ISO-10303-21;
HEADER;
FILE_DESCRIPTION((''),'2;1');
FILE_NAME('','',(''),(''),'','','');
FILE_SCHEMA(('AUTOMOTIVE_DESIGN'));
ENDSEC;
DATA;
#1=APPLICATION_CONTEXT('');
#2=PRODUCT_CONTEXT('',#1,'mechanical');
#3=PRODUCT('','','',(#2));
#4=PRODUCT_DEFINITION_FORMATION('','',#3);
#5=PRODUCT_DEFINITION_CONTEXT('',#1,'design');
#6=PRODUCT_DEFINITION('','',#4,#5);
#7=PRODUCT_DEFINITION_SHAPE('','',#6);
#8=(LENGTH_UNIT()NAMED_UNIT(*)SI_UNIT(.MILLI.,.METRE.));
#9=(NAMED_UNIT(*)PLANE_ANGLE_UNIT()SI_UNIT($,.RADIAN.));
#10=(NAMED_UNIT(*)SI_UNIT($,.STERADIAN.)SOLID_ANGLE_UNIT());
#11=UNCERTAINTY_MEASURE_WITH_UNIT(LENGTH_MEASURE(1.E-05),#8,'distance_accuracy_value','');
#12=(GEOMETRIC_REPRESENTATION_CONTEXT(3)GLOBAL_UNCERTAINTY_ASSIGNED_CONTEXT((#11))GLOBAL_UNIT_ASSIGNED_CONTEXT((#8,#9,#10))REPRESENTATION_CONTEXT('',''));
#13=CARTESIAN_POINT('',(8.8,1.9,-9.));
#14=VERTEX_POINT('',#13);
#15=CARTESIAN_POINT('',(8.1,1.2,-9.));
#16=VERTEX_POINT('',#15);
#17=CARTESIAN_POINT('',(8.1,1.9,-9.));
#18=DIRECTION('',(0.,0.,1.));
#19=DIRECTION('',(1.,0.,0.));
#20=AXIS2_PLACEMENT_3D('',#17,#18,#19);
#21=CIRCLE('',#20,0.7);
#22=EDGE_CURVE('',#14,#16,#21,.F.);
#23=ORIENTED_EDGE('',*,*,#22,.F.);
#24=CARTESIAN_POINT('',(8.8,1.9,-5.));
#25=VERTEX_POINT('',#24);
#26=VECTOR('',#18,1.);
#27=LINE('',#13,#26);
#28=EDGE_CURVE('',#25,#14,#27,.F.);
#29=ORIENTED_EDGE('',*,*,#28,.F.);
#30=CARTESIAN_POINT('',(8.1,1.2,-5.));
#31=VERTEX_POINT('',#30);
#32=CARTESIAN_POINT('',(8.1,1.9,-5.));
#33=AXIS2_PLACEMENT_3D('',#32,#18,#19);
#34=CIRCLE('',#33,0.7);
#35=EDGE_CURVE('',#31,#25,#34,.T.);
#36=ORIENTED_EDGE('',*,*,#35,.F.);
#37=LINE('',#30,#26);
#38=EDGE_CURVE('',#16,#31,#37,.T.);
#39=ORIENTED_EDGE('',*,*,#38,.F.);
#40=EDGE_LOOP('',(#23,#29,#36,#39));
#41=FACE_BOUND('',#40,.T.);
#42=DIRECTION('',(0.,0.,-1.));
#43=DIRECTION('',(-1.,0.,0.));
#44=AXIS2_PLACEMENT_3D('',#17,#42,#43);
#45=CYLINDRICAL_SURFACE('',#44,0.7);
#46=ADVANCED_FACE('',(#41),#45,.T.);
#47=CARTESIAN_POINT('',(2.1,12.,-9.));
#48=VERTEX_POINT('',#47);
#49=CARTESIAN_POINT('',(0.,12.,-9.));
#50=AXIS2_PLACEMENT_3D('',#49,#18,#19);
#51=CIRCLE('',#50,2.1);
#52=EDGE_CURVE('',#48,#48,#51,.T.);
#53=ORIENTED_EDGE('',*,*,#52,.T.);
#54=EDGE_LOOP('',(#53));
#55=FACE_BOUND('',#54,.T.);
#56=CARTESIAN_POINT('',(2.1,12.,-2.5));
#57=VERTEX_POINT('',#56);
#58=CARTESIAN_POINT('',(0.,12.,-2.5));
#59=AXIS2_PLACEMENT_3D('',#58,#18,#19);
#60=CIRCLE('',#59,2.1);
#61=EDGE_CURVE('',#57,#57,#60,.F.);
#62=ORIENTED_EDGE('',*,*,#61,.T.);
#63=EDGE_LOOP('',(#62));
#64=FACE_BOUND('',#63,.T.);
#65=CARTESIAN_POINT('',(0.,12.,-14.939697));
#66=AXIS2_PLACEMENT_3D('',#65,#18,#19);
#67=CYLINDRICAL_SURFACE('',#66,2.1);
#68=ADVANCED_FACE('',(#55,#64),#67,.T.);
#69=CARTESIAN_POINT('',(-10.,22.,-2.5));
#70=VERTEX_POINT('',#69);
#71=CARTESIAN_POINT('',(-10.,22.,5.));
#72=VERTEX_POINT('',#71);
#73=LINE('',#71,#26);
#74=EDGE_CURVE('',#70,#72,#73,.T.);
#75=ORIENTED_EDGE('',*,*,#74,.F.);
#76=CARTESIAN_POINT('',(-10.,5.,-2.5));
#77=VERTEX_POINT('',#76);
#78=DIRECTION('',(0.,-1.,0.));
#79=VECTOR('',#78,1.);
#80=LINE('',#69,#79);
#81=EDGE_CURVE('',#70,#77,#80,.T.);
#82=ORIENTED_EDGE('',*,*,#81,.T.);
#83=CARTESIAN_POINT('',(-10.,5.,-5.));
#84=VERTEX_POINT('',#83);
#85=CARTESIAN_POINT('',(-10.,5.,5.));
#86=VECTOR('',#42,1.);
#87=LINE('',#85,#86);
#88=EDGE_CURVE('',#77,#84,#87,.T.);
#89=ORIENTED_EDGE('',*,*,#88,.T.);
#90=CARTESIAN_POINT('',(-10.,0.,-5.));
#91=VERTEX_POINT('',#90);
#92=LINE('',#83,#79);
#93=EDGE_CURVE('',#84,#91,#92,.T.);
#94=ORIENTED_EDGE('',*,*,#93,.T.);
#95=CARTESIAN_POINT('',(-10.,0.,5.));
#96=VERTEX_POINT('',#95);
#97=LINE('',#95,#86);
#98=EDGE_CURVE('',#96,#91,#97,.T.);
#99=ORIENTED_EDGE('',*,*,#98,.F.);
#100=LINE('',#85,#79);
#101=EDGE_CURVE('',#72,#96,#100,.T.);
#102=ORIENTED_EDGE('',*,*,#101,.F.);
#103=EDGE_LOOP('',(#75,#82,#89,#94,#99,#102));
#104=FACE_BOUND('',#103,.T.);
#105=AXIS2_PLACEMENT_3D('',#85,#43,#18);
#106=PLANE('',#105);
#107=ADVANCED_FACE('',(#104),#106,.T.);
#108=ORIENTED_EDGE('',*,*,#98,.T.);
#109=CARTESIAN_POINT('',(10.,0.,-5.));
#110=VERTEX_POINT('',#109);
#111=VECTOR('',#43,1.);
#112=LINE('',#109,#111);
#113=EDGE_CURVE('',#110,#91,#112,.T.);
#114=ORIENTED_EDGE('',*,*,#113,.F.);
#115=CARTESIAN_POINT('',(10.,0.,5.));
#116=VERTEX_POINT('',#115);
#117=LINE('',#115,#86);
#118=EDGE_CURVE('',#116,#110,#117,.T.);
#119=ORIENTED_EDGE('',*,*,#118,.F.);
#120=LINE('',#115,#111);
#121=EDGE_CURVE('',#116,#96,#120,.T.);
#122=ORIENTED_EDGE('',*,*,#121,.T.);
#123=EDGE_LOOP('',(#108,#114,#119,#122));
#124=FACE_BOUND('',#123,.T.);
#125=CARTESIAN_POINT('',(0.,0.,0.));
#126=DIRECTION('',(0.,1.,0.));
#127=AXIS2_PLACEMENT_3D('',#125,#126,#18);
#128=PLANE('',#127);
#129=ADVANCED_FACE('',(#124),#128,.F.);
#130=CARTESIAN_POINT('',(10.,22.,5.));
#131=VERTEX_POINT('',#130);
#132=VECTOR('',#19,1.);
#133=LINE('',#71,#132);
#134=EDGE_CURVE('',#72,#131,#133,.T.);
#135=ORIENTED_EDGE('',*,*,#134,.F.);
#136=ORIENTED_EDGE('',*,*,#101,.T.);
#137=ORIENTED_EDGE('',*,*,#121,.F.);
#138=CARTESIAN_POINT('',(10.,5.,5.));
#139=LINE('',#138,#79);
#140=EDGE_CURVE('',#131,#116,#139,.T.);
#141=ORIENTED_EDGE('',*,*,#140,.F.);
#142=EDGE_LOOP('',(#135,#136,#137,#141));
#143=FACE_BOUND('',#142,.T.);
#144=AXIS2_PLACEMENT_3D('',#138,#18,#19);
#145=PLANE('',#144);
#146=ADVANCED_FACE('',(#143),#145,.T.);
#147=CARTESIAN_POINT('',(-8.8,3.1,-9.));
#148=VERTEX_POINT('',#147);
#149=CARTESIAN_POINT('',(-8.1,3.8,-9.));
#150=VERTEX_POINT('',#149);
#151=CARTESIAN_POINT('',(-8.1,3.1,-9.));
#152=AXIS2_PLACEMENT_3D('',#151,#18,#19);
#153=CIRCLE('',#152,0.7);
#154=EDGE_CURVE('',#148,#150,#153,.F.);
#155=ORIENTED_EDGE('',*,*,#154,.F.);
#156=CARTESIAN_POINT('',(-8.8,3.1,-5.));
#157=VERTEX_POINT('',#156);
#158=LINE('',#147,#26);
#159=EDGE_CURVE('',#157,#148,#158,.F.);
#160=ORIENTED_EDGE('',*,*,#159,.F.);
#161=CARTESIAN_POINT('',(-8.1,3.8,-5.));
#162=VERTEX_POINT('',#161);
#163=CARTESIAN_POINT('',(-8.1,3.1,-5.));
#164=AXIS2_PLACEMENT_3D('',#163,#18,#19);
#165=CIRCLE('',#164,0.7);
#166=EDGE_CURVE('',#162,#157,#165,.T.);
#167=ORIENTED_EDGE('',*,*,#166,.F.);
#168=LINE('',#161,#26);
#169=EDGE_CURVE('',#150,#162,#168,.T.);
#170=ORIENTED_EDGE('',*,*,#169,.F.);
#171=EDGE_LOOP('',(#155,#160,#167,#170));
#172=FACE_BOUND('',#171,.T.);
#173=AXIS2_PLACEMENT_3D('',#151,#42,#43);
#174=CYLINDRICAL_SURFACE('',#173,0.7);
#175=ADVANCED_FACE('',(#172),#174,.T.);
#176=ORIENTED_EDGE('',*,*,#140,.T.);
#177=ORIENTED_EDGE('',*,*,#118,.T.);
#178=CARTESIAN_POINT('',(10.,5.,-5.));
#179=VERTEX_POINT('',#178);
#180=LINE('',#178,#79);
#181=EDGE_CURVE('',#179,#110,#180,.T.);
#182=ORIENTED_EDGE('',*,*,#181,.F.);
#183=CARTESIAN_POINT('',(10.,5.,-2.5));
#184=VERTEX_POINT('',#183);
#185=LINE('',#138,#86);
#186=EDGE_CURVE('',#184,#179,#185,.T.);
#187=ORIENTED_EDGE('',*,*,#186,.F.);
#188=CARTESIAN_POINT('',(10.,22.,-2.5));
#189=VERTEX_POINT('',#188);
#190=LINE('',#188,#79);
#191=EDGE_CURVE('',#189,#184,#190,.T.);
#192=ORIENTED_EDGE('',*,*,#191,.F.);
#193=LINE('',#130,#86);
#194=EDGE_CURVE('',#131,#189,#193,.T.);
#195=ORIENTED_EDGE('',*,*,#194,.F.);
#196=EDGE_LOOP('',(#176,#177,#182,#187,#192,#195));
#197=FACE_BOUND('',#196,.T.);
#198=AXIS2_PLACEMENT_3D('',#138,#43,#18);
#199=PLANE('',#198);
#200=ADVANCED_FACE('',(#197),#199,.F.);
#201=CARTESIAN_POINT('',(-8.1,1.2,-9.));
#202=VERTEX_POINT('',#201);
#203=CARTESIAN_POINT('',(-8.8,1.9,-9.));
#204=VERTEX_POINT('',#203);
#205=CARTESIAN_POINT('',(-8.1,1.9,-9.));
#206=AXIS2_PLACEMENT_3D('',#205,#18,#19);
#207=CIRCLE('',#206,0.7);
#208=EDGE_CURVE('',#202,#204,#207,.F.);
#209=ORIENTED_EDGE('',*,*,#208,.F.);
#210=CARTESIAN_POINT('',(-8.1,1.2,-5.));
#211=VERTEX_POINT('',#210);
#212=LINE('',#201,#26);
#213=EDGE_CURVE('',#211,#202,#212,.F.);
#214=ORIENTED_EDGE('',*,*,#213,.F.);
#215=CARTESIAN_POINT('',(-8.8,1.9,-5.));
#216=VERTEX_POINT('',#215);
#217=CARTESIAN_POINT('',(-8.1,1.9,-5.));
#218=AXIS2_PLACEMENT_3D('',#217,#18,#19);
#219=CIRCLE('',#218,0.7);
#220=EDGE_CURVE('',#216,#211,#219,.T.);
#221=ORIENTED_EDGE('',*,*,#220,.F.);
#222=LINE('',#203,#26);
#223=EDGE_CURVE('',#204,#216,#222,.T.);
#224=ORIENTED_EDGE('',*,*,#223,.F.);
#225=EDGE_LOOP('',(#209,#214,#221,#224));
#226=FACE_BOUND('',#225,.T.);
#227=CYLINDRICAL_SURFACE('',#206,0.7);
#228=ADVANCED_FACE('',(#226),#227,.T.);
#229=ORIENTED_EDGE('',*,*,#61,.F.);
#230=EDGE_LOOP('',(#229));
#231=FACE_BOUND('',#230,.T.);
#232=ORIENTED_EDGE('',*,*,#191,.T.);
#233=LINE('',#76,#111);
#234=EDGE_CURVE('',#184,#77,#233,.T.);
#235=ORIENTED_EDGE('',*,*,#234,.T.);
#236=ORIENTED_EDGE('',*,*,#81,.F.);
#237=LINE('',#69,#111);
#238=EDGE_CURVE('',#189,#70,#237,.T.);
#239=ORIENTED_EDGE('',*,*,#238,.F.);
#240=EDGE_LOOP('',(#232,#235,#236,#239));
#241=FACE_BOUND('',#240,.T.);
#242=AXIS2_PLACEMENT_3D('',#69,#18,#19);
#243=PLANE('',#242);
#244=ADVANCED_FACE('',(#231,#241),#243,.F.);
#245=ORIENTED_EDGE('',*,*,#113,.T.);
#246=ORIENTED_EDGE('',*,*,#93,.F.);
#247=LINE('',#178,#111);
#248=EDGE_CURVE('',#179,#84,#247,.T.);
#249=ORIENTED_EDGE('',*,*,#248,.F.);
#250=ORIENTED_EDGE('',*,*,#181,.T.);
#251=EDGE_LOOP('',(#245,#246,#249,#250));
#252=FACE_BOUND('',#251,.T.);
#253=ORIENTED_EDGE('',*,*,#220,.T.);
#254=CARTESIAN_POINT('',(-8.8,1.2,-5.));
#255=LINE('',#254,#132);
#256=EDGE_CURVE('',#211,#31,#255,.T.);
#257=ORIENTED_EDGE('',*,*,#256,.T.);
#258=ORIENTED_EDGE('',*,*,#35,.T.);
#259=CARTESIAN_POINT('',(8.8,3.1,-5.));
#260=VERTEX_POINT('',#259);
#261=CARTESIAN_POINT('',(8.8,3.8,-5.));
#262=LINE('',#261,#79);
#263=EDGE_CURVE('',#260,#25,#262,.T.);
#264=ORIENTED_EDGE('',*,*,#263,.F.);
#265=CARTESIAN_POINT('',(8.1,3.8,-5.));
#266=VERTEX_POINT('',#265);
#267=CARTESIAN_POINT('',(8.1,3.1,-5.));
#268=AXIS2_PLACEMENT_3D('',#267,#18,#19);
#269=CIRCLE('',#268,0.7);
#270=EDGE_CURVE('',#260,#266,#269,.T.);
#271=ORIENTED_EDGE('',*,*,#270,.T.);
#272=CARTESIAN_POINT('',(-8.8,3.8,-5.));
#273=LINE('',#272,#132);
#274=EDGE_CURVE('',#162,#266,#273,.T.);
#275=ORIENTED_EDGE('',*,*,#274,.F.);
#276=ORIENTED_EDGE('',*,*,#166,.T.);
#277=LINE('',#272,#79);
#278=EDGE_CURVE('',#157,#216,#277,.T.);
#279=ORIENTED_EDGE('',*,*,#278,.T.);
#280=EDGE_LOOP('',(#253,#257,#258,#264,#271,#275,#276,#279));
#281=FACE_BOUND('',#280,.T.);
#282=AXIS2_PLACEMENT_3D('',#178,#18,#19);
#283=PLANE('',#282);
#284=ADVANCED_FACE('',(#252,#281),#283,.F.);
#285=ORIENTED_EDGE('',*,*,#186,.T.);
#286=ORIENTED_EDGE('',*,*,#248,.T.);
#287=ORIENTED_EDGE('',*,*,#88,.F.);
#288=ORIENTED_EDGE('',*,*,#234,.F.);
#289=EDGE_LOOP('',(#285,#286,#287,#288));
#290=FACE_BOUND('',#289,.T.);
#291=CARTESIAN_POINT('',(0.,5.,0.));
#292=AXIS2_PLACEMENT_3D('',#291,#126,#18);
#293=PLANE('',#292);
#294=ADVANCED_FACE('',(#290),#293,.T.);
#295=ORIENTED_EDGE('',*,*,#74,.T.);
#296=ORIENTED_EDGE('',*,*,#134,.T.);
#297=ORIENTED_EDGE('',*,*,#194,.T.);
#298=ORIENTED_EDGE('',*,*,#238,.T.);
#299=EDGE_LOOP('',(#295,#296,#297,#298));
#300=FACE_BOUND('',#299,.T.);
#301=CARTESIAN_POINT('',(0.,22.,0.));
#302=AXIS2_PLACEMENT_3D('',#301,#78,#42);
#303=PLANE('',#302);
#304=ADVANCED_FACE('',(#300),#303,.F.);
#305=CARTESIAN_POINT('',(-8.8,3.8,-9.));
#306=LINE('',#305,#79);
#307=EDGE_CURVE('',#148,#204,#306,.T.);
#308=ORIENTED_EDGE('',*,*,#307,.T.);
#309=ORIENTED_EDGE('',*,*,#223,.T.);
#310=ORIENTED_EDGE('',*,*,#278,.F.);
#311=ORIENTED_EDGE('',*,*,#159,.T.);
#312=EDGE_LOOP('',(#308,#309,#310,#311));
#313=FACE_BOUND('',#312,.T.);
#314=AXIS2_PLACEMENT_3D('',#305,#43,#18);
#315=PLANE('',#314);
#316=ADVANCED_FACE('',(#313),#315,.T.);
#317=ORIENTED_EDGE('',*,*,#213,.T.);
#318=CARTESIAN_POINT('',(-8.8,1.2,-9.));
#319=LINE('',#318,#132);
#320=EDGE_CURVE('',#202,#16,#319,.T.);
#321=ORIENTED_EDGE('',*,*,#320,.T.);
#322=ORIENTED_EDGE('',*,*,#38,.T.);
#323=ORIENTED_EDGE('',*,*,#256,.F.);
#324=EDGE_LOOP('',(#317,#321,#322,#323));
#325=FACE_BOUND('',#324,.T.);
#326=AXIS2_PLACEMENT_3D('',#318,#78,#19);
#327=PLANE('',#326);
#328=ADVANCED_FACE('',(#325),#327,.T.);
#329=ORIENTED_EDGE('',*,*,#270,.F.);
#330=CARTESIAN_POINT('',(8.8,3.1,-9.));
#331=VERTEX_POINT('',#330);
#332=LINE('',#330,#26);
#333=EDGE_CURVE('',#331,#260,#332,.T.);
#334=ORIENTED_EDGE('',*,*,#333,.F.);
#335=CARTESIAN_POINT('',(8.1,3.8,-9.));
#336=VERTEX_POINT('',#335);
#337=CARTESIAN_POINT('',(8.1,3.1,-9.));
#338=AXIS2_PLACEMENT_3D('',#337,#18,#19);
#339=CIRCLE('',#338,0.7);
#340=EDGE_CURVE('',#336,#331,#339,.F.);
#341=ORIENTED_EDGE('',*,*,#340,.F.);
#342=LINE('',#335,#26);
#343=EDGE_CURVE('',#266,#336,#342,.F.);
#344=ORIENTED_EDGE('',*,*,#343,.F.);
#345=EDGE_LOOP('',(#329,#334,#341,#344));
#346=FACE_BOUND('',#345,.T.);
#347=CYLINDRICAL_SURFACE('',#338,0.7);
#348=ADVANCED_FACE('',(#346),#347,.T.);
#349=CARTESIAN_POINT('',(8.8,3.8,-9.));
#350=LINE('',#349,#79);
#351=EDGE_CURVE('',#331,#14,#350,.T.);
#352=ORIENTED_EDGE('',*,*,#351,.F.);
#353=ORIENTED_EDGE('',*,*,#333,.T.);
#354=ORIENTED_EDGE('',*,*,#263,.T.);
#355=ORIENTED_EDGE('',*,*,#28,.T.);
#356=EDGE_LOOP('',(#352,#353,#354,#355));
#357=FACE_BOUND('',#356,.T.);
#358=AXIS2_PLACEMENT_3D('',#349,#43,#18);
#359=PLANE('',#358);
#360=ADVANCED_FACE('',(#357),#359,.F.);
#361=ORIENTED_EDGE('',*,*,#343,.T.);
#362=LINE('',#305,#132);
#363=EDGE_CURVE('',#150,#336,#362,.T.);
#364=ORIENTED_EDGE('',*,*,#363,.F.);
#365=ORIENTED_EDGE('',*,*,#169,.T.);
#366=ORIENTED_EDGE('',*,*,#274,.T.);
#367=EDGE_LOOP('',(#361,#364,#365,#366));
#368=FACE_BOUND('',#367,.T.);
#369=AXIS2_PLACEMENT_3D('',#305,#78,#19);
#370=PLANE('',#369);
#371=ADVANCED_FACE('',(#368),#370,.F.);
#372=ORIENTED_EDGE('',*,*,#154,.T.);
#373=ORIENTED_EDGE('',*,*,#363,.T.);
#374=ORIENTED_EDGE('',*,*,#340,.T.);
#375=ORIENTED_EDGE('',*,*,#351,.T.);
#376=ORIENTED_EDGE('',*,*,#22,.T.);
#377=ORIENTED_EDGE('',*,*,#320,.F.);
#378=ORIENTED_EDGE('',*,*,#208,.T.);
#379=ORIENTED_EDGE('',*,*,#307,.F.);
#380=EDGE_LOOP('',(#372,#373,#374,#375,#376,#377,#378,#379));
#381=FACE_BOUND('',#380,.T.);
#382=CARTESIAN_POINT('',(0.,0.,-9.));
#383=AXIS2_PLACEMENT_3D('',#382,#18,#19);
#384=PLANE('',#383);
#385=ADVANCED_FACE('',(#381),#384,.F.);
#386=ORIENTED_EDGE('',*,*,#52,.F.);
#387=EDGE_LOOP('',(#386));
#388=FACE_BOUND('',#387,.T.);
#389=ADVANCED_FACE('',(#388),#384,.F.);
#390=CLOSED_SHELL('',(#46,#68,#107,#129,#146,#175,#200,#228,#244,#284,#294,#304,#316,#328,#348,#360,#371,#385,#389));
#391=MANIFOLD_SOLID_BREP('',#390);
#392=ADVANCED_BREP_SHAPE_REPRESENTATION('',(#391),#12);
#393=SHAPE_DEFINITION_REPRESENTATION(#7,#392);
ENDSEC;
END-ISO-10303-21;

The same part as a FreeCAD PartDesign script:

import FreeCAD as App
import Part
import Sketcher
from FreeCAD import Vector
Q = App.Units.Quantity


def edges_at(feature, points):
    """Names of the edges that pass closest to the given points."""
    edges = feature.Shape.Edges
    near = lambda p: min(range(len(edges)), key=lambda i: edges[i].distToShape(Part.Vertex(*p))[0])
    return sorted({f"Edge{near(p) + 1}" for p in points})

doc = App.newDocument("Part")
params = doc.addObject("Spreadsheet::Sheet", "Params")
for row, (alias, value) in enumerate([
    ("sketch1_width", "20 mm"),
    ("sketch1_height", "10 mm"),
    ("pad1_length", "5 mm"),
    ("sketch2_width", "17.6 mm"),
    ("sketch2_height", "2.6 mm"),
    ("pad2_length", "4 mm"),
    ("fillet_radius", "0.7 mm"),
    ("sketch3_width", "20 mm"),
    ("sketch3_height", "7.5 mm"),
    ("pad3_length", "17 mm"),
    ("sketch4_diameter", "4.2 mm"),
    ("pad4_length", "6.5 mm"),
], start=1):
    params.set(f"A{row}", alias)
    params.set(f"B{row}", "=" + value)
    params.setAlias(f"B{row}", alias)

body = doc.addObject("PartDesign::Body", "Body")

# Sketch on XZ plane
sketch1 = body.newObject("Sketcher::SketchObject", "Sketch")
sketch1.AttachmentSupport = (doc.getObject("XZ_Plane"), [""])
sketch1.MapMode = "FlatFace"
sketch1.addGeometry([
    Part.LineSegment(Vector(-10, -5, 0), Vector(-10, 5, 0)),
    Part.LineSegment(Vector(-10, 5, 0), Vector(10, 5, 0)),
    Part.LineSegment(Vector(10, 5, 0), Vector(10, -5, 0)),
    Part.LineSegment(Vector(10, -5, 0), Vector(-10, -5, 0)),
], False)
sketch1.addConstraint([
    Sketcher.Constraint("Coincident", 0, 2, 1, 1),
    Sketcher.Constraint("Coincident", 1, 2, 2, 1),
    Sketcher.Constraint("Coincident", 2, 2, 3, 1),
    Sketcher.Constraint("Coincident", 3, 2, 0, 1),
    Sketcher.Constraint("Vertical", 0),
    Sketcher.Constraint("Horizontal", 1),
    Sketcher.Constraint("Vertical", 2),
    Sketcher.Constraint("Horizontal", 3),
    Sketcher.Constraint("Symmetric", 0, 2, 2, 2, -1, 1),
    Sketcher.Constraint("DistanceX", 1, 1, 1, 2, Q("20 mm")),
    Sketcher.Constraint("DistanceY", 0, 1, 0, 2, Q("10 mm")),
])
sketch1.setExpression("Constraints[9]", "Params.sketch1_width")
sketch1.setExpression("Constraints[10]", "Params.sketch1_height")
pad1 = body.newObject("PartDesign::Pad", "Pad")
pad1.Profile = sketch1
pad1.setExpression("Length", "Params.pad1_length")
pad1.Reversed = True

# Sketch on XY plane
sketch2 = body.newObject("Sketcher::SketchObject", "Sketch001")
sketch2.AttachmentSupport = (doc.getObject("XY_Plane"), [""])
sketch2.MapMode = "FlatFace"
sketch2.AttachmentOffset = App.Placement(Vector(0, 0, -5), App.Rotation())
sketch2.addGeometry([
    Part.LineSegment(Vector(8.8, 3.8, 0), Vector(8.8, 1.2, 0)),
    Part.LineSegment(Vector(8.8, 1.2, 0), Vector(-8.8, 1.2, 0)),
    Part.LineSegment(Vector(-8.8, 1.2, 0), Vector(-8.8, 3.8, 0)),
    Part.LineSegment(Vector(-8.8, 3.8, 0), Vector(8.8, 3.8, 0)),
], False)
sketch2.addConstraint([
    Sketcher.Constraint("Coincident", 0, 2, 1, 1),
    Sketcher.Constraint("Coincident", 1, 2, 2, 1),
    Sketcher.Constraint("Coincident", 2, 2, 3, 1),
    Sketcher.Constraint("Coincident", 3, 2, 0, 1),
    Sketcher.Constraint("Vertical", 0),
    Sketcher.Constraint("Horizontal", 1),
    Sketcher.Constraint("Vertical", 2),
    Sketcher.Constraint("Horizontal", 3),
    Sketcher.Constraint("DistanceX", 1, 2, 1, 1, Q("17.6 mm")),
    Sketcher.Constraint("DistanceY", 0, 2, 0, 1, Q("2.6 mm")),
    Sketcher.Constraint("DistanceX", -1, 1, 0, 2, Q("8.8 mm")),
    Sketcher.Constraint("DistanceY", -1, 1, 0, 2, Q("1.2 mm")),
])
sketch2.setExpression("Constraints[8]", "Params.sketch2_width")
sketch2.setExpression("Constraints[9]", "Params.sketch2_height")
pad2 = body.newObject("PartDesign::Pad", "Pad001")
pad2.Profile = sketch2
pad2.setExpression("Length", "Params.pad2_length")
pad2.Reversed = True
doc.recompute()

fillet = body.newObject("PartDesign::Fillet", "Fillet")
fillet.Base = (pad2, edges_at(pad2, [
    (-8.8, 1.2, -7),
    (-8.8, 3.8, -7),
    (8.8, 3.8, -7),
    (8.8, 1.2, -7),
]))
fillet.setExpression("Radius", "Params.fillet_radius")

# Sketch on XZ plane
sketch3 = body.newObject("Sketcher::SketchObject", "Sketch002")
sketch3.AttachmentSupport = (doc.getObject("XZ_Plane"), [""])
sketch3.MapMode = "FlatFace"
sketch3.AttachmentOffset = App.Placement(Vector(0, 0, -5), App.Rotation())
sketch3.addGeometry([
    Part.LineSegment(Vector(-10, -2, 0), Vector(-10, 5, 0)),
    Part.LineSegment(Vector(-10, 5, 0), Vector(10, 5, 0)),
    Part.LineSegment(Vector(10, 5, 0), Vector(10, -2, 0)),
    Part.LineSegment(Vector(10, -2, 0), Vector(-10, -2, 0)),
], False)
sketch3.addConstraint([
    Sketcher.Constraint("Coincident", 0, 2, 1, 1),
    Sketcher.Constraint("Coincident", 1, 2, 2, 1),
    Sketcher.Constraint("Coincident", 2, 2, 3, 1),
    Sketcher.Constraint("Coincident", 3, 2, 0, 1),
    Sketcher.Constraint("Vertical", 0),
    Sketcher.Constraint("Horizontal", 1),
    Sketcher.Constraint("Vertical", 2),
    Sketcher.Constraint("Horizontal", 3),
    Sketcher.Constraint("DistanceX", 1, 1, 1, 2, Q("20 mm")),
    Sketcher.Constraint("DistanceY", 0, 1, 0, 2, Q("7.5 mm")),
    Sketcher.Constraint("DistanceX", 0, 2, -1, 1, Q("10 mm")),
    Sketcher.Constraint("DistanceY", -1, 1, 0, 2, Q("5 mm")),
])
sketch3.setExpression("Constraints[8]", "Params.sketch3_width")
sketch3.setExpression("Constraints[9]", "Params.sketch3_height")
pad3 = body.newObject("PartDesign::Pad", "Pad002")
pad3.Profile = sketch3
pad3.setExpression("Length", "Params.pad3_length")
pad3.Reversed = True

# Sketch on XY plane
sketch4 = body.newObject("Sketcher::SketchObject", "Sketch003")
sketch4.AttachmentSupport = (doc.getObject("XY_Plane"), [""])
sketch4.MapMode = "FlatFace"
sketch4.AttachmentOffset = App.Placement(Vector(0, 0, -2.5), App.Rotation())
sketch4.addGeometry(Part.Circle(Vector(0, 12, 0), Vector(0, 0, 1), 2.1), False)
sketch4.addConstraint([
    Sketcher.Constraint("PointOnObject", 0, 3, -2),
    Sketcher.Constraint("Diameter", 0, Q("4.2 mm")),
    Sketcher.Constraint("DistanceY", -1, 1, 0, 3, Q("12 mm")),
])
sketch4.setExpression("Constraints[1]", "Params.sketch4_diameter")
pad4 = body.newObject("PartDesign::Pad", "Pad003")
pad4.Profile = sketch4
pad4.setExpression("Length", "Params.pad4_length")
pad4.Reversed = True

doc.recompute()
